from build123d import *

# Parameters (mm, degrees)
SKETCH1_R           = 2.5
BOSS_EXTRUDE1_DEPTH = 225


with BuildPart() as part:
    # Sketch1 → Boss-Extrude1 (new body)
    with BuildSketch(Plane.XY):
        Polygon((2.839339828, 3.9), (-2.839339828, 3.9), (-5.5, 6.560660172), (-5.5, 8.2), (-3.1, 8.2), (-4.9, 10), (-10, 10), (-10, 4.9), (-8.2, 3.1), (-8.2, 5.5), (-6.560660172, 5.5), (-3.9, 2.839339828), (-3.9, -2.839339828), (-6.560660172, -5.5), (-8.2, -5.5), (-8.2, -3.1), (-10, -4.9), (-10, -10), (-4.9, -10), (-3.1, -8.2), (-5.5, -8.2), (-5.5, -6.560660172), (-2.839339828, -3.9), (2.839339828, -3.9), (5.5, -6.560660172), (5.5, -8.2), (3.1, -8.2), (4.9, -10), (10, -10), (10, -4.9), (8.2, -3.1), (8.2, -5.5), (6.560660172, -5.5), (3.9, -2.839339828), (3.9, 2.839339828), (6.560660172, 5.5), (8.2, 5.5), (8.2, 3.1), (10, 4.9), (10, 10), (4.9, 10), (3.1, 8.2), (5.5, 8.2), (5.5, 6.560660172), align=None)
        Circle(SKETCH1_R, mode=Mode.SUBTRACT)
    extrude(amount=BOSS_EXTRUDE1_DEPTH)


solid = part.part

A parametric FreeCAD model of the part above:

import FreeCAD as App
import Part
import Sketcher
from FreeCAD import Vector
Q = App.Units.Quantity


def add_polygon(sketch, points):
    """Adds a closed chain of lines whose ends are joined by coincident constraints."""
    first, n = sketch.GeometryCount, len(points)
    for a, b in zip(points, points[1:] + points[:1]):
        sketch.addGeometry(Part.LineSegment(App.Vector(*a, 0), App.Vector(*b, 0)), False)
    for i in range(n):
        sketch.addConstraint(Sketcher.Constraint("Coincident", first + i, 2, first + (i + 1) % n, 1))

doc = App.newDocument("Part")
body = doc.addObject("PartDesign::Body", "Body")

# Sketch on XY plane
sketch1 = body.newObject("Sketcher::SketchObject", "Sketch")
sketch1.AttachmentSupport = (doc.getObject("XY_Plane"), [""])
sketch1.MapMode = "FlatFace"
add_polygon(sketch1, [(2.8, 3.9), (-2.8, 3.9), (-5.5, 6.6), (-5.5, 8.2), (-3.1, 8.2), (-4.9, 10), (-10, 10), (-10, 4.9), (-8.2, 3.1), (-8.2, 5.5), (-6.6, 5.5), (-3.9, 2.8), (-3.9, -2.8), (-6.6, -5.5), (-8.2, -5.5), (-8.2, -3.1), (-10, -4.9), (-10, -10), (-4.9, -10), (-3.1, -8.2), (-5.5, -8.2), (-5.5, -6.6), (-2.8, -3.9), (2.8, -3.9), (5.5, -6.6), (5.5, -8.2), (3.1, -8.2), (4.9, -10), (10, -10), (10, -4.9), (8.2, -3.1), (8.2, -5.5), (6.6, -5.5), (3.9, -2.8), (3.9, 2.8), (6.6, 5.5), (8.2, 5.5), (8.2, 3.1), (10, 4.9), (10, 10), (4.9, 10), (3.1, 8.2), (5.5, 8.2), (5.5, 6.6)])  # lines 0-43
sketch1.addGeometry(Part.Circle(Vector(0, 0, 0), Vector(0, 0, 1), 2.5), False)  # 44
sketch1.addConstraint(Sketcher.Constraint("Horizontal", 0))
sketch1.addConstraint(Sketcher.Constraint("Vertical", 2))
sketch1.addConstraint(Sketcher.Constraint("Horizontal", 3))
sketch1.addConstraint(Sketcher.Constraint("Horizontal", 5))
sketch1.addConstraint(Sketcher.Constraint("Vertical", 6))
sketch1.addConstraint(Sketcher.Constraint("Vertical", 8))
sketch1.addConstraint(Sketcher.Constraint("Horizontal", 9))
sketch1.addConstraint(Sketcher.Constraint("Vertical", 11))
sketch1.addConstraint(Sketcher.Constraint("Horizontal", 13))
sketch1.addConstraint(Sketcher.Constraint("Vertical", 14))
sketch1.addConstraint(Sketcher.Constraint("Vertical", 16))
sketch1.addConstraint(Sketcher.Constraint("Horizontal", 17))
sketch1.addConstraint(Sketcher.Constraint("Horizontal", 19))
sketch1.addConstraint(Sketcher.Constraint("Vertical", 20))
sketch1.addConstraint(Sketcher.Constraint("Horizontal", 22))
sketch1.addConstraint(Sketcher.Constraint("Vertical", 24))
sketch1.addConstraint(Sketcher.Constraint("Horizontal", 25))
sketch1.addConstraint(Sketcher.Constraint("Horizontal", 27))
sketch1.addConstraint(Sketcher.Constraint("Vertical", 28))
sketch1.addConstraint(Sketcher.Constraint("Vertical", 30))
sketch1.addConstraint(Sketcher.Constraint("Horizontal", 31))
sketch1.addConstraint(Sketcher.Constraint("Vertical", 33))
sketch1.addConstraint(Sketcher.Constraint("Horizontal", 35))
sketch1.addConstraint(Sketcher.Constraint("Vertical", 36))
sketch1.addConstraint(Sketcher.Constraint("Vertical", 38))
sketch1.addConstraint(Sketcher.Constraint("Horizontal", 39))
sketch1.addConstraint(Sketcher.Constraint("Horizontal", 41))
sketch1.addConstraint(Sketcher.Constraint("Vertical", 42))
sketch1.addConstraint(Sketcher.Constraint("Coincident", 44, 3, -1, 1))
sketch1.addConstraint(Sketcher.Constraint("Symmetric", 0, 2, 22, 2, -1, 1))
sketch1.addConstraint(Sketcher.Constraint("Symmetric", 1, 2, 23, 2, -1, 1))
sketch1.addConstraint(Sketcher.Constraint("Symmetric", 3, 2, 25, 2, -1, 1))
sketch1.addConstraint(Sketcher.Constraint("Symmetric", 4, 2, 26, 2, -1, 1))
sketch1.addConstraint(Sketcher.Constraint("Symmetric", 6, 2, 28, 2, -1, 1))
sketch1.addConstraint(Sketcher.Constraint("Symmetric", 7, 2, 29, 2, -1, 1))
sketch1.addConstraint(Sketcher.Constraint("Symmetric", 9, 2, 31, 2, -1, 1))
sketch1.addConstraint(Sketcher.Constraint("Symmetric", 10, 2, 32, 2, -1, 1))
sketch1.addConstraint(Sketcher.Constraint("Symmetric", 12, 2, 34, 2, -1, 1))
sketch1.addConstraint(Sketcher.Constraint("Symmetric", 14, 2, 36, 2, -1, 1))
sketch1.addConstraint(Sketcher.Constraint("Symmetric", 15, 2, 37, 2, -1, 1))
sketch1.addConstraint(Sketcher.Constraint("Symmetric", 17, 2, 39, 2, -1, 1))
sketch1.addConstraint(Sketcher.Constraint("Symmetric", 18, 2, 40, 2, -1, 1))
sketch1.addConstraint(Sketcher.Constraint("Symmetric", 20, 2, 42, 2, -1, 1))
sketch1.addConstraint(Sketcher.Constraint("Symmetric", 20, 2, 23, 2, -2))
sketch1.addConstraint(Sketcher.Constraint("Symmetric", 18, 2, 25, 2, -2))
sketch1.addConstraint(Sketcher.Constraint("Symmetric", 17, 2, 26, 2, -2))
sketch1.addConstraint(Sketcher.Constraint("Symmetric", 15, 2, 28, 2, -2))
sketch1.addConstraint(Sketcher.Constraint("Symmetric", 14, 2, 29, 2, -2))
sketch1.addConstraint(Sketcher.Constraint("Symmetric", 12, 2, 31, 2, -2))
sketch1.addConstraint(Sketcher.Constraint("Parallel", 1, 4))
sketch1.addConstraint(Sketcher.Constraint("Parallel", 4, 7))
sketch1.addConstraint(Sketcher.Constraint("Parallel", 7, 10))
sketch1.addConstraint(Sketcher.Constraint("Perpendicular", 10, 12))
sketch1.addConstraint(Sketcher.Constraint("Parallel", 12, 15))
sketch1.addConstraint(Sketcher.Constraint("Parallel", 18, 21))
sketch1.addConstraint(Sketcher.Constraint("Perpendicular", 32, 34))
sketch1.addConstraint(Sketcher.Constraint("Parallel", 40, 43))
sketch1.addConstraint(Sketcher.Constraint("Equal", 35, 2))
sketch1.addConstraint(Sketcher.Constraint("Equal", 39, 6))
sketch1.addConstraint(Sketcher.Constraint("Equal", 41, 8))
sketch1.addConstraint(Sketcher.Constraint("Equal", 22, 11))
sketch1.addConstraint(Sketcher.Constraint("Equal", 4, 7))
sketch1.addConstraint(Sketcher.Constraint("Equal", 1, 10))
sketch1.addConstraint(Sketcher.Constraint("Diameter", 44, Q("5 mm")))
sketch1.addConstraint(Sketcher.Constraint("DistanceX", 3, 1, 3, 2, Q("2.4 mm")))
sketch1.addConstraint(Sketcher.Constraint("DistanceX", 5, 2, 5, 1, Q("5.1 mm")))
sketch1.addConstraint(Sketcher.Constraint("DistanceY", -1, 1, 4, 2, Q("10 mm")))
sketch1.addConstraint(Sketcher.Constraint("DistanceY", 0, 2, 6, 2, Q("1 mm")))
sketch1.addConstraint(Sketcher.Constraint("DistanceY", 15, 2, 7, 2, Q("8 mm")))
sketch1.addConstraint(Sketcher.Constraint("DistanceX", 0, 2, 0, 1, Q("5.67868 mm")))
pad1 = body.newObject("PartDesign::Pad", "Pad")
pad1.Profile = sketch1
pad1.Length = 225

doc.recompute()
